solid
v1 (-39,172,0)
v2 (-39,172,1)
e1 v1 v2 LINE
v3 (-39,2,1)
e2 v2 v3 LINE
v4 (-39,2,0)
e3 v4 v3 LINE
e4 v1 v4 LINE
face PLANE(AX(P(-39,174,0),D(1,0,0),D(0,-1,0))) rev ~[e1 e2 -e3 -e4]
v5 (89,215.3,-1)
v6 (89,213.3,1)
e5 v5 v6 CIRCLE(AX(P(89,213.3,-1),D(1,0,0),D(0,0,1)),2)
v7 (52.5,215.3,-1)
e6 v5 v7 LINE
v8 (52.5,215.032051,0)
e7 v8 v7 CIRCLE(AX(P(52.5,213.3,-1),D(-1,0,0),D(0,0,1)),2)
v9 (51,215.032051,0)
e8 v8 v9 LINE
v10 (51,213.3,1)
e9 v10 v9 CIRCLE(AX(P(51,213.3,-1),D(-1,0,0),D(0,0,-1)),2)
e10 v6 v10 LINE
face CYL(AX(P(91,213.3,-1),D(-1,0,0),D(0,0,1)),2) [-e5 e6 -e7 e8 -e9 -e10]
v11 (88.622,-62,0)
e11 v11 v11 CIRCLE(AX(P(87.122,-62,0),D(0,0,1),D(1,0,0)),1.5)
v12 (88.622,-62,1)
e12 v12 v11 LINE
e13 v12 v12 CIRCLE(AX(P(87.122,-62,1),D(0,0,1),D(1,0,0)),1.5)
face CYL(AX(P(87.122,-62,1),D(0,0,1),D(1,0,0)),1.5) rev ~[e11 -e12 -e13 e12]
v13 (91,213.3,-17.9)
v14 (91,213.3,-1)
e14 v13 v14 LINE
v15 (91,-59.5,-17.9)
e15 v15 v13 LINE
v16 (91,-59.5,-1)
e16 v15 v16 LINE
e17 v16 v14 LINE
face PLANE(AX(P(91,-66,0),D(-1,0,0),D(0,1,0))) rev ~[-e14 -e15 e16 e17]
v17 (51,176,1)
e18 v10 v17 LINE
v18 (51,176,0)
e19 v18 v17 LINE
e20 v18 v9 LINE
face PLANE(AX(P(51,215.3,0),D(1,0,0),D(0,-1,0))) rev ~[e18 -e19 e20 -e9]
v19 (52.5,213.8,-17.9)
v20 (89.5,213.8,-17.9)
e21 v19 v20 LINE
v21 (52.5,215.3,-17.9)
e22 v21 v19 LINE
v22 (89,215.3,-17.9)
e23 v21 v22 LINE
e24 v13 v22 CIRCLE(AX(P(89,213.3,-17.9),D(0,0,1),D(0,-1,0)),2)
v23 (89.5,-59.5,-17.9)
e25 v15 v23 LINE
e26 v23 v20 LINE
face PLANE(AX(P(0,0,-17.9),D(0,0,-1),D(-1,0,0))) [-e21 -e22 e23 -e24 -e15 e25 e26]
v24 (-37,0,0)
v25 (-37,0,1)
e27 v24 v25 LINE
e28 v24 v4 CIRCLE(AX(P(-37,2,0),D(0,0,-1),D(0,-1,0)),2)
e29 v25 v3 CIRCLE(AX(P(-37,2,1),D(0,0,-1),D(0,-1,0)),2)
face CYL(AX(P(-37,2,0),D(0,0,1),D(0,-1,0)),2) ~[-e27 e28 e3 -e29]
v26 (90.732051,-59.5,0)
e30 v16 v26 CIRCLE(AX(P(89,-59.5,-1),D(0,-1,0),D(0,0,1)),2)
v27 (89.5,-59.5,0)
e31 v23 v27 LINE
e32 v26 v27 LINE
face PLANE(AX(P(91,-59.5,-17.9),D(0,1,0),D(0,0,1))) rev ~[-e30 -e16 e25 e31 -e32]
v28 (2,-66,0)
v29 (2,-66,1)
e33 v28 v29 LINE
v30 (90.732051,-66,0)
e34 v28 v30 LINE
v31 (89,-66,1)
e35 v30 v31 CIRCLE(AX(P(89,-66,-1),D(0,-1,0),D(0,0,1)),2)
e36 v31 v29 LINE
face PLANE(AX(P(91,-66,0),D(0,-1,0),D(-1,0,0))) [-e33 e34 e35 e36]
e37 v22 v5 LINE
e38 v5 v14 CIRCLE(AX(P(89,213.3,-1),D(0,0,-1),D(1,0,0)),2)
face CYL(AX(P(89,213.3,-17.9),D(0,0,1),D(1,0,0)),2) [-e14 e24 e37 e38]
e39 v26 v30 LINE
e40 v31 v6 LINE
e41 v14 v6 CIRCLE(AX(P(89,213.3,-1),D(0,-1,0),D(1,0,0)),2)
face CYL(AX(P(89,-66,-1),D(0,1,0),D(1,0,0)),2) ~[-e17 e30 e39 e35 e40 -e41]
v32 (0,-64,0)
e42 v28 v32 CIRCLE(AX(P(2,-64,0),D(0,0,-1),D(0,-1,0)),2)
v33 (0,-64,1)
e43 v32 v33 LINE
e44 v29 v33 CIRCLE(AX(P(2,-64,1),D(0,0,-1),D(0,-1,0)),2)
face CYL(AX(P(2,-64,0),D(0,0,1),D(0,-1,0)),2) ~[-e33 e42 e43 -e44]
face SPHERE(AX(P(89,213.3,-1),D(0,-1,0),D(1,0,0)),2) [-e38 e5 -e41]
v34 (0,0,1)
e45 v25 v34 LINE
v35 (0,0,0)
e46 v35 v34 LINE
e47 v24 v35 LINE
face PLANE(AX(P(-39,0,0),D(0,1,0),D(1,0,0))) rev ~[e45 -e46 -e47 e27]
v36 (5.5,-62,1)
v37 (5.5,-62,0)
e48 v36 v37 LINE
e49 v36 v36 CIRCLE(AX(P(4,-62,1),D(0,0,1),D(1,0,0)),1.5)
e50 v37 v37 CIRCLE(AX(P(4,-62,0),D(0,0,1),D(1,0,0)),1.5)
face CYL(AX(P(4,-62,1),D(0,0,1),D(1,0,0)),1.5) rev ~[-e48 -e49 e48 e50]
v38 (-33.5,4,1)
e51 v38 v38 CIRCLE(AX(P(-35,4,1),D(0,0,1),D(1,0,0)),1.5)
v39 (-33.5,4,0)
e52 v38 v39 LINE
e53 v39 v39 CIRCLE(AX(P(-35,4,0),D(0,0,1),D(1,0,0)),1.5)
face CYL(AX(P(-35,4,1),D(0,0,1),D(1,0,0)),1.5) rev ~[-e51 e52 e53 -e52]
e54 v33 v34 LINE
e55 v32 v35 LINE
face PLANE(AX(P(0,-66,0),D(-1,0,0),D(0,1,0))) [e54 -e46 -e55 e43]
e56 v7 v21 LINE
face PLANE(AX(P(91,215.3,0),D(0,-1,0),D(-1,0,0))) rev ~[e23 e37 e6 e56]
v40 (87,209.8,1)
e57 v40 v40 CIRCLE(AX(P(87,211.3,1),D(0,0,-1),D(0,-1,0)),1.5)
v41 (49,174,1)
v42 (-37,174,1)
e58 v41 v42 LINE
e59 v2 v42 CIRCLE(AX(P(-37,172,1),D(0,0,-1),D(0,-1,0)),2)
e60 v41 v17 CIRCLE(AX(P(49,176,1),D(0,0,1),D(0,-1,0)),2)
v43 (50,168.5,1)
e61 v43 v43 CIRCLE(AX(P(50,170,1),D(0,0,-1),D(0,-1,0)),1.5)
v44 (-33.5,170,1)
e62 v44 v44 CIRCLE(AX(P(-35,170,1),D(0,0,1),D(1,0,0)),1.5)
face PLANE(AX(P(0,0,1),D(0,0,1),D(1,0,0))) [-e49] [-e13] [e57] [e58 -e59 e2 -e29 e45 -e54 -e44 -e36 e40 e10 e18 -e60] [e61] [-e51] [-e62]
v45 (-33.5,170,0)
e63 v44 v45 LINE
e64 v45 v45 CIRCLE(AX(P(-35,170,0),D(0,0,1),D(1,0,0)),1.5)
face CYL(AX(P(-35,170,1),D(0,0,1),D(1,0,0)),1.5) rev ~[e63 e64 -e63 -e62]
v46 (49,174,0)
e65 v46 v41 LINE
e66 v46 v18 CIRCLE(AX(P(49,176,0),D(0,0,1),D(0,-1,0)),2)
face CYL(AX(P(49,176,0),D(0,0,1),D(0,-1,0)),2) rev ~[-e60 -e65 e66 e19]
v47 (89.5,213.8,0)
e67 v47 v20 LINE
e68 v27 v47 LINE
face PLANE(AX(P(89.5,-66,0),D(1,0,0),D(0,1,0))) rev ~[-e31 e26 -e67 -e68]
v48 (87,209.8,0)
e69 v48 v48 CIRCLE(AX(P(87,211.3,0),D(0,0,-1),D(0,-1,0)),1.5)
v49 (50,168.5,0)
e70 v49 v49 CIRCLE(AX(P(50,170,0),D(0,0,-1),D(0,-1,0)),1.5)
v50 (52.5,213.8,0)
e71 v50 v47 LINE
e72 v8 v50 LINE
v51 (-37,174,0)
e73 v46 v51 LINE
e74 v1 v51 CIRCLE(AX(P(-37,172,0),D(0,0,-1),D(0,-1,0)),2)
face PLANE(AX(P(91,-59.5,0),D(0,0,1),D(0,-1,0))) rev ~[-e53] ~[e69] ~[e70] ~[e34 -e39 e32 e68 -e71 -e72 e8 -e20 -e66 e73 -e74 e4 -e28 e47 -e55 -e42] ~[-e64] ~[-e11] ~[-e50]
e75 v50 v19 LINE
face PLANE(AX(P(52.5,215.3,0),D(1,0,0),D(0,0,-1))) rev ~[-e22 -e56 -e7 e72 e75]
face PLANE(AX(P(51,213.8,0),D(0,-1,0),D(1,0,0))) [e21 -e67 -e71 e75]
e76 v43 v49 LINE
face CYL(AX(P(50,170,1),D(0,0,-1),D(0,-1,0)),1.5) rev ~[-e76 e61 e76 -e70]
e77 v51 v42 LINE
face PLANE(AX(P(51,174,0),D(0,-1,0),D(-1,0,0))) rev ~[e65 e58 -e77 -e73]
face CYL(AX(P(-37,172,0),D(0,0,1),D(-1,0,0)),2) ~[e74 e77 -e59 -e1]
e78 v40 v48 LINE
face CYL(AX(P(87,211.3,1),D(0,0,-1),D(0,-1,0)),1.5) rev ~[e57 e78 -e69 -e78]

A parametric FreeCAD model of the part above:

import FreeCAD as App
import Part
import Sketcher
Q = App.Units.Quantity


def edges_at(feature, points):
    """Names of the edges that pass closest to the given points."""
    edges = feature.Shape.Edges
    near = lambda p: min(range(len(edges)), key=lambda i: edges[i].distToShape(Part.Vertex(*p))[0])
    return sorted({f"Edge{near(p) + 1}" for p in points})

doc = App.newDocument("Part")
body = doc.addObject("PartDesign::Body", "Body")

# Sketch on XY plane
sketch1 = doc.addObject("Sketcher::SketchObject", "Sketch")
body.addObject(sketch1)
sketch1.AttachmentSupport = (doc.XY_Plane, [""])
sketch1.MapMode = "FlatFace"
sketch1.addGeometry(Part.LineSegment(App.Vector(0, -66, 0), App.Vector(91, -66, 0)), False)
sketch1.addGeometry(Part.LineSegment(App.Vector(91, -66, 0), App.Vector(91, 215, 0)), False)
sketch1.addGeometry(Part.LineSegment(App.Vector(91, 215, 0), App.Vector(51, 215, 0)), False)
sketch1.addGeometry(Part.LineSegment(App.Vector(51, 215, 0), App.Vector(51, 174, 0)), False)
sketch1.addGeometry(Part.LineSegment(App.Vector(51, 174, 0), App.Vector(-39, 174, 0)), False)
sketch1.addGeometry(Part.LineSegment(App.Vector(-39, 174, 0), App.Vector(-39, 0, 0)), False)
sketch1.addGeometry(Part.LineSegment(App.Vector(-39, 0, 0), App.Vector(0, 0, 0)), False)
sketch1.addGeometry(Part.LineSegment(App.Vector(0, 0, 0), App.Vector(0, -66, 0)), False)
sketch1.addConstraint(Sketcher.Constraint("Coincident", 0, 2, 1, 1))
sketch1.addConstraint(Sketcher.Constraint("Coincident", 1, 2, 2, 1))
sketch1.addConstraint(Sketcher.Constraint("Coincident", 2, 2, 3, 1))
sketch1.addConstraint(Sketcher.Constraint("Coincident", 3, 2, 4, 1))
sketch1.addConstraint(Sketcher.Constraint("Coincident", 4, 2, 5, 1))
sketch1.addConstraint(Sketcher.Constraint("Coincident", 5, 2, 6, 1))
sketch1.addConstraint(Sketcher.Constraint("Coincident", 6, 2, 7, 1))
sketch1.addConstraint(Sketcher.Constraint("Coincident", 7, 2, 0, 1))
sketch1.addConstraint(Sketcher.Constraint("Horizontal", 0))
sketch1.addConstraint(Sketcher.Constraint("Vertical", 1))
sketch1.addConstraint(Sketcher.Constraint("Horizontal", 2))
sketch1.addConstraint(Sketcher.Constraint("Vertical", 3))
sketch1.addConstraint(Sketcher.Constraint("Horizontal", 4))
sketch1.addConstraint(Sketcher.Constraint("Vertical", 5))
sketch1.addConstraint(Sketcher.Constraint("Horizontal", 6))
sketch1.addConstraint(Sketcher.Constraint("Vertical", 7))
sketch1.addConstraint(Sketcher.Constraint("Coincident", 6, 2, -1, 1))
sketch1.addConstraint(Sketcher.Constraint("DistanceX", 0, 1, 0, 2, Q("91 mm")))
sketch1.addConstraint(Sketcher.Constraint("DistanceX", 2, 2, 2, 1, Q("40 mm")))
sketch1.addConstraint(Sketcher.Constraint("DistanceX", 4, 2, 4, 1, Q("90 mm")))
sketch1.addConstraint(Sketcher.Constraint("DistanceY", 7, 2, 7, 1, Q("66 mm")))
sketch1.addConstraint(Sketcher.Constraint("DistanceY", 1, 1, 1, 2, Q("281.3 mm")))
sketch1.addConstraint(Sketcher.Constraint("DistanceY", 3, 2, 3, 1, Q("41.3 mm")))
pad1 = doc.addObject("PartDesign::Pad", "Pad")
body.addObject(pad1)
pad1.Profile = sketch1
pad1.Length = 1

# Sketch on XY plane
sketch2 = doc.addObject("Sketcher::SketchObject", "Sketch001")
body.addObject(sketch2)
sketch2.AttachmentSupport = (doc.XY_Plane, [""])
sketch2.MapMode = "FlatFace"
sketch2.AttachmentOffset = App.Placement(App.Vector(0, 0, 1), App.Rotation())
sketch2.addGeometry(Part.Circle(App.Vector(4, -62, 0), App.Vector(0, 0, 1), 1.5), False)
sketch2.addGeometry(Part.Circle(App.Vector(87.1, -62, 0), App.Vector(0, 0, 1), 1.5), False)
sketch2.addGeometry(Part.Circle(App.Vector(-35, 4, 0), App.Vector(0, 0, 1), 1.5), False)
sketch2.addGeometry(Part.Circle(App.Vector(-35, 170, 0), App.Vector(0, 0, 1), 1.5), False)
sketch2.addConstraint(Sketcher.Constraint("Equal", 0, 1))
sketch2.addConstraint(Sketcher.Constraint("Equal", 1, 2))
sketch2.addConstraint(Sketcher.Constraint("Equal", 2, 3))
sketch2.addConstraint(Sketcher.Constraint("Horizontal", 0, 3, 1, 3))
sketch2.addConstraint(Sketcher.Constraint("Vertical", 2, 3, 3, 3))
sketch2.addConstraint(Sketcher.Constraint("Diameter", 0, Q("3 mm")))
sketch2.addConstraint(Sketcher.Constraint("DistanceX", -1, 1, 0, 3, Q("4 mm")))
sketch2.addConstraint(Sketcher.Constraint("DistanceY", -1, 1, 2, 3, Q("4 mm")))
sketch2.addConstraint(Sketcher.Constraint("DistanceY", 0, 3, -1, 1, Q("62 mm")))
sketch2.addConstraint(Sketcher.Constraint("DistanceX", 2, 3, -1, 1, Q("35 mm")))
sketch2.addConstraint(Sketcher.Constraint("DistanceY", -1, 1, 3, 3, Q("170 mm")))
sketch2.addConstraint(Sketcher.Constraint("DistanceX", -1, 1, 1, 3, Q("87.122 mm")))
pocket1 = doc.addObject("PartDesign::Pocket", "Pocket")
body.addObject(pocket1)
pocket1.Profile = sketch2
pocket1.Length = 1.5

# Sketch on XY plane
sketch3 = doc.addObject("Sketcher::SketchObject", "Sketch002")
body.addObject(sketch3)
sketch3.AttachmentSupport = (doc.XY_Plane, [""])
sketch3.MapMode = "FlatFace"
sketch3.addGeometry(Part.LineSegment(App.Vector(91, -66, 0), App.Vector(89.5, -66, 0)), False)
sketch3.addGeometry(Part.LineSegment(App.Vector(89.5, -66, 0), App.Vector(89.5, 213.8, 0)), False)
sketch3.addGeometry(Part.LineSegment(App.Vector(89.5, 213.8, 0), App.Vector(51, 213.8, 0)), False)
sketch3.addGeometry(Part.LineSegment(App.Vector(51, 213.8, 0), App.Vector(51, 215.3, 0)), False)
sketch3.addGeometry(Part.LineSegment(App.Vector(51, 215.3, 0), App.Vector(91, 215.3, 0)), False)
sketch3.addGeometry(Part.LineSegment(App.Vector(91, 215.3, 0), App.Vector(91, -66, 0)), False)
sketch3.addConstraint(Sketcher.Constraint("Coincident", 0, 2, 1, 1))
sketch3.addConstraint(Sketcher.Constraint("Coincident", 1, 2, 2, 1))
sketch3.addConstraint(Sketcher.Constraint("Coincident", 2, 2, 3, 1))
sketch3.addConstraint(Sketcher.Constraint("Coincident", 3, 2, 4, 1))
sketch3.addConstraint(Sketcher.Constraint("Coincident", 4, 2, 5, 1))
sketch3.addConstraint(Sketcher.Constraint("Coincident", 5, 2, 0, 1))
sketch3.addConstraint(Sketcher.Constraint("Horizontal", 0))
sketch3.addConstraint(Sketcher.Constraint("Vertical", 1))
sketch3.addConstraint(Sketcher.Constraint("Horizontal", 2))
sketch3.addConstraint(Sketcher.Constraint("Vertical", 3))
sketch3.addConstraint(Sketcher.Constraint("Horizontal", 4))
sketch3.addConstraint(Sketcher.Constraint("Vertical", 5))
sketch3.addConstraint(Sketcher.Constraint("Equal", 0, 3))
sketch3.addConstraint(Sketcher.Constraint("DistanceX", 0, 2, 0, 1, Q("1.5 mm")))
sketch3.addConstraint(Sketcher.Constraint("DistanceX", 4, 1, 4, 2, Q("40 mm")))
sketch3.addConstraint(Sketcher.Constraint("DistanceY", 1, 1, 1, 2, Q("279.8 mm")))
sketch3.addConstraint(Sketcher.Constraint("DistanceY", 0, 2, -1, 1, Q("66 mm")))
sketch3.addConstraint(Sketcher.Constraint("DistanceX", -1, 1, 2, 2, Q("51 mm")))
pad2 = doc.addObject("PartDesign::Pad", "Pad001")
body.addObject(pad2)
pad2.Profile = sketch3
pad2.Length = 17.9
pad2.Reversed = True

# Sketch on YZ plane
sketch4 = doc.addObject("Sketcher::SketchObject", "Sketch003")
body.addObject(sketch4)
sketch4.AttachmentSupport = (doc.YZ_Plane, [""])
sketch4.MapMode = "FlatFace"
sketch4.AttachmentOffset = App.Placement(App.Vector(0, 0, 91), App.Rotation())
sketch4.addGeometry(Part.LineSegment(App.Vector(-60, 0, 0), App.Vector(-66, 0, 0)), False)
sketch4.addGeometry(Part.LineSegment(App.Vector(-66, 0, 0), App.Vector(-66, -18, 0)), False)
sketch4.addGeometry(Part.LineSegment(App.Vector(-66, -18, 0), App.Vector(-60, -18, 0)), False)
sketch4.addGeometry(Part.LineSegment(App.Vector(-60, -18, 0), App.Vector(-60, 0, 0)), False)
sketch4.addConstraint(Sketcher.Constraint("Coincident", 0, 2, 1, 1))
sketch4.addConstraint(Sketcher.Constraint("Coincident", 1, 2, 2, 1))
sketch4.addConstraint(Sketcher.Constraint("Coincident", 2, 2, 3, 1))
sketch4.addConstraint(Sketcher.Constraint("Coincident", 3, 2, 0, 1))
sketch4.addConstraint(Sketcher.Constraint("Horizontal", 0))
sketch4.addConstraint(Sketcher.Constraint("Vertical", 1))
sketch4.addConstraint(Sketcher.Constraint("Horizontal", 2))
sketch4.addConstraint(Sketcher.Constraint("Vertical", 3))
sketch4.addConstraint(Sketcher.Constraint("PointOnObject", 0, 2, -1))
sketch4.addConstraint(Sketcher.Constraint("DistanceX", 0, 2, 0, 1, Q("6.5 mm")))
sketch4.addConstraint(Sketcher.Constraint("DistanceY", 1, 2, 1, 1, Q("17.9 mm")))
sketch4.addConstraint(Sketcher.Constraint("DistanceX", 0, 2, -1, 1, Q("66 mm")))
pocket2 = doc.addObject("PartDesign::Pocket", "Pocket001")
body.addObject(pocket2)
pocket2.Profile = sketch4
pocket2.Length = 1.5
doc.recompute()

fillet = doc.addObject("PartDesign::Fillet", "Fillet")
body.addObject(fillet)
fillet.Base = (pocket2, edges_at(pocket2, [
    (91, 74.65, 1),
    (91, 215.3, -8.45),
    (71, 215.3, 1),
    (51, 174, 0.5),
    (-39, 174, 0.5),
    (-39, 0, 0.5),
    (0, -66, 0.5),
]))
fillet.Radius = 2

# Sketch on XY plane
sketch5 = doc.addObject("Sketcher::SketchObject", "Sketch004")
body.addObject(sketch5)
sketch5.AttachmentSupport = (doc.XY_Plane, [""])
sketch5.MapMode = "FlatFace"
sketch5.AttachmentOffset = App.Placement(App.Vector(0, 0, 1), App.Rotation())
sketch5.addGeometry(Part.Circle(App.Vector(87, 211.3, 0), App.Vector(0, 0, 1), 1.5), False)
sketch5.addGeometry(Part.Circle(App.Vector(50, 170, 0), App.Vector(0, 0, 1), 1.5), False)
sketch5.addConstraint(Sketcher.Constraint("Equal", 0, 1))
sketch5.addConstraint(Sketcher.Constraint("Diameter", 0, Q("3 mm")))
sketch5.addConstraint(Sketcher.Constraint("DistanceX", -1, 1, 0, 3, Q("87 mm")))
sketch5.addConstraint(Sketcher.Constraint("DistanceX", -1, 1, 1, 3, Q("50 mm")))
sketch5.addConstraint(Sketcher.Constraint("DistanceY", -1, 1, 1, 3, Q("170 mm")))
sketch5.addConstraint(Sketcher.Constraint("DistanceY", -1, 1, 0, 3, Q("211.3 mm")))
doc.recompute()
hole = doc.addObject("PartDesign::Hole", "Hole")
body.addObject(hole)
hole.Profile = sketch5
hole.ThreadType = "None"
hole.Diameter = 3
hole.DepthType = "Dimension"
hole.Depth = 1
hole.DrillPoint = "Flat"

# Sketch on XZ plane
sketch6 = doc.addObject("Sketcher::SketchObject", "Sketch005")
body.addObject(sketch6)
sketch6.AttachmentSupport = (doc.XZ_Plane, [""])
sketch6.MapMode = "FlatFace"
sketch6.AttachmentOffset = App.Placement(App.Vector(0, 0, -215.3), App.Rotation())
sketch6.addGeometry(Part.LineSegment(App.Vector(51, -17.9, 0), App.Vector(51, 0, 0)), False)
sketch6.addGeometry(Part.LineSegment(App.Vector(51, 0, 0), App.Vector(52.5, 0, 0)), False)
sketch6.addGeometry(Part.LineSegment(App.Vector(52.5, 0, 0), App.Vector(52.5, -17.9, 0)), False)
sketch6.addGeometry(Part.LineSegment(App.Vector(52.5, -17.9, 0), App.Vector(51, -17.9, 0)), False)
sketch6.addConstraint(Sketcher.Constraint("Coincident", 0, 2, 1, 1))
sketch6.addConstraint(Sketcher.Constraint("Coincident", 1, 2, 2, 1))
sketch6.addConstraint(Sketcher.Constraint("Coincident", 2, 2, 3, 1))
sketch6.addConstraint(Sketcher.Constraint("Coincident", 3, 2, 0, 1))
sketch6.addConstraint(Sketcher.Constraint("Vertical", 0))
sketch6.addConstraint(Sketcher.Constraint("Horizontal", 1))
sketch6.addConstraint(Sketcher.Constraint("Vertical", 2))
sketch6.addConstraint(Sketcher.Constraint("Horizontal", 3))
sketch6.addConstraint(Sketcher.Constraint("PointOnObject", 0, 2, -1))
sketch6.addConstraint(Sketcher.Constraint("DistanceX", 1, 1, 1, 2, Q("1.5 mm")))
sketch6.addConstraint(Sketcher.Constraint("DistanceY", 0, 1, 0, 2, Q("17.9 mm")))
sketch6.addConstraint(Sketcher.Constraint("DistanceX", -1, 1, 0, 2, Q("51 mm")))
pocket3 = doc.addObject("PartDesign::Pocket", "Pocket002")
body.addObject(pocket3)
pocket3.Profile = sketch6
pocket3.Length = 1.5
pocket3.Reversed = True

doc.recompute()
